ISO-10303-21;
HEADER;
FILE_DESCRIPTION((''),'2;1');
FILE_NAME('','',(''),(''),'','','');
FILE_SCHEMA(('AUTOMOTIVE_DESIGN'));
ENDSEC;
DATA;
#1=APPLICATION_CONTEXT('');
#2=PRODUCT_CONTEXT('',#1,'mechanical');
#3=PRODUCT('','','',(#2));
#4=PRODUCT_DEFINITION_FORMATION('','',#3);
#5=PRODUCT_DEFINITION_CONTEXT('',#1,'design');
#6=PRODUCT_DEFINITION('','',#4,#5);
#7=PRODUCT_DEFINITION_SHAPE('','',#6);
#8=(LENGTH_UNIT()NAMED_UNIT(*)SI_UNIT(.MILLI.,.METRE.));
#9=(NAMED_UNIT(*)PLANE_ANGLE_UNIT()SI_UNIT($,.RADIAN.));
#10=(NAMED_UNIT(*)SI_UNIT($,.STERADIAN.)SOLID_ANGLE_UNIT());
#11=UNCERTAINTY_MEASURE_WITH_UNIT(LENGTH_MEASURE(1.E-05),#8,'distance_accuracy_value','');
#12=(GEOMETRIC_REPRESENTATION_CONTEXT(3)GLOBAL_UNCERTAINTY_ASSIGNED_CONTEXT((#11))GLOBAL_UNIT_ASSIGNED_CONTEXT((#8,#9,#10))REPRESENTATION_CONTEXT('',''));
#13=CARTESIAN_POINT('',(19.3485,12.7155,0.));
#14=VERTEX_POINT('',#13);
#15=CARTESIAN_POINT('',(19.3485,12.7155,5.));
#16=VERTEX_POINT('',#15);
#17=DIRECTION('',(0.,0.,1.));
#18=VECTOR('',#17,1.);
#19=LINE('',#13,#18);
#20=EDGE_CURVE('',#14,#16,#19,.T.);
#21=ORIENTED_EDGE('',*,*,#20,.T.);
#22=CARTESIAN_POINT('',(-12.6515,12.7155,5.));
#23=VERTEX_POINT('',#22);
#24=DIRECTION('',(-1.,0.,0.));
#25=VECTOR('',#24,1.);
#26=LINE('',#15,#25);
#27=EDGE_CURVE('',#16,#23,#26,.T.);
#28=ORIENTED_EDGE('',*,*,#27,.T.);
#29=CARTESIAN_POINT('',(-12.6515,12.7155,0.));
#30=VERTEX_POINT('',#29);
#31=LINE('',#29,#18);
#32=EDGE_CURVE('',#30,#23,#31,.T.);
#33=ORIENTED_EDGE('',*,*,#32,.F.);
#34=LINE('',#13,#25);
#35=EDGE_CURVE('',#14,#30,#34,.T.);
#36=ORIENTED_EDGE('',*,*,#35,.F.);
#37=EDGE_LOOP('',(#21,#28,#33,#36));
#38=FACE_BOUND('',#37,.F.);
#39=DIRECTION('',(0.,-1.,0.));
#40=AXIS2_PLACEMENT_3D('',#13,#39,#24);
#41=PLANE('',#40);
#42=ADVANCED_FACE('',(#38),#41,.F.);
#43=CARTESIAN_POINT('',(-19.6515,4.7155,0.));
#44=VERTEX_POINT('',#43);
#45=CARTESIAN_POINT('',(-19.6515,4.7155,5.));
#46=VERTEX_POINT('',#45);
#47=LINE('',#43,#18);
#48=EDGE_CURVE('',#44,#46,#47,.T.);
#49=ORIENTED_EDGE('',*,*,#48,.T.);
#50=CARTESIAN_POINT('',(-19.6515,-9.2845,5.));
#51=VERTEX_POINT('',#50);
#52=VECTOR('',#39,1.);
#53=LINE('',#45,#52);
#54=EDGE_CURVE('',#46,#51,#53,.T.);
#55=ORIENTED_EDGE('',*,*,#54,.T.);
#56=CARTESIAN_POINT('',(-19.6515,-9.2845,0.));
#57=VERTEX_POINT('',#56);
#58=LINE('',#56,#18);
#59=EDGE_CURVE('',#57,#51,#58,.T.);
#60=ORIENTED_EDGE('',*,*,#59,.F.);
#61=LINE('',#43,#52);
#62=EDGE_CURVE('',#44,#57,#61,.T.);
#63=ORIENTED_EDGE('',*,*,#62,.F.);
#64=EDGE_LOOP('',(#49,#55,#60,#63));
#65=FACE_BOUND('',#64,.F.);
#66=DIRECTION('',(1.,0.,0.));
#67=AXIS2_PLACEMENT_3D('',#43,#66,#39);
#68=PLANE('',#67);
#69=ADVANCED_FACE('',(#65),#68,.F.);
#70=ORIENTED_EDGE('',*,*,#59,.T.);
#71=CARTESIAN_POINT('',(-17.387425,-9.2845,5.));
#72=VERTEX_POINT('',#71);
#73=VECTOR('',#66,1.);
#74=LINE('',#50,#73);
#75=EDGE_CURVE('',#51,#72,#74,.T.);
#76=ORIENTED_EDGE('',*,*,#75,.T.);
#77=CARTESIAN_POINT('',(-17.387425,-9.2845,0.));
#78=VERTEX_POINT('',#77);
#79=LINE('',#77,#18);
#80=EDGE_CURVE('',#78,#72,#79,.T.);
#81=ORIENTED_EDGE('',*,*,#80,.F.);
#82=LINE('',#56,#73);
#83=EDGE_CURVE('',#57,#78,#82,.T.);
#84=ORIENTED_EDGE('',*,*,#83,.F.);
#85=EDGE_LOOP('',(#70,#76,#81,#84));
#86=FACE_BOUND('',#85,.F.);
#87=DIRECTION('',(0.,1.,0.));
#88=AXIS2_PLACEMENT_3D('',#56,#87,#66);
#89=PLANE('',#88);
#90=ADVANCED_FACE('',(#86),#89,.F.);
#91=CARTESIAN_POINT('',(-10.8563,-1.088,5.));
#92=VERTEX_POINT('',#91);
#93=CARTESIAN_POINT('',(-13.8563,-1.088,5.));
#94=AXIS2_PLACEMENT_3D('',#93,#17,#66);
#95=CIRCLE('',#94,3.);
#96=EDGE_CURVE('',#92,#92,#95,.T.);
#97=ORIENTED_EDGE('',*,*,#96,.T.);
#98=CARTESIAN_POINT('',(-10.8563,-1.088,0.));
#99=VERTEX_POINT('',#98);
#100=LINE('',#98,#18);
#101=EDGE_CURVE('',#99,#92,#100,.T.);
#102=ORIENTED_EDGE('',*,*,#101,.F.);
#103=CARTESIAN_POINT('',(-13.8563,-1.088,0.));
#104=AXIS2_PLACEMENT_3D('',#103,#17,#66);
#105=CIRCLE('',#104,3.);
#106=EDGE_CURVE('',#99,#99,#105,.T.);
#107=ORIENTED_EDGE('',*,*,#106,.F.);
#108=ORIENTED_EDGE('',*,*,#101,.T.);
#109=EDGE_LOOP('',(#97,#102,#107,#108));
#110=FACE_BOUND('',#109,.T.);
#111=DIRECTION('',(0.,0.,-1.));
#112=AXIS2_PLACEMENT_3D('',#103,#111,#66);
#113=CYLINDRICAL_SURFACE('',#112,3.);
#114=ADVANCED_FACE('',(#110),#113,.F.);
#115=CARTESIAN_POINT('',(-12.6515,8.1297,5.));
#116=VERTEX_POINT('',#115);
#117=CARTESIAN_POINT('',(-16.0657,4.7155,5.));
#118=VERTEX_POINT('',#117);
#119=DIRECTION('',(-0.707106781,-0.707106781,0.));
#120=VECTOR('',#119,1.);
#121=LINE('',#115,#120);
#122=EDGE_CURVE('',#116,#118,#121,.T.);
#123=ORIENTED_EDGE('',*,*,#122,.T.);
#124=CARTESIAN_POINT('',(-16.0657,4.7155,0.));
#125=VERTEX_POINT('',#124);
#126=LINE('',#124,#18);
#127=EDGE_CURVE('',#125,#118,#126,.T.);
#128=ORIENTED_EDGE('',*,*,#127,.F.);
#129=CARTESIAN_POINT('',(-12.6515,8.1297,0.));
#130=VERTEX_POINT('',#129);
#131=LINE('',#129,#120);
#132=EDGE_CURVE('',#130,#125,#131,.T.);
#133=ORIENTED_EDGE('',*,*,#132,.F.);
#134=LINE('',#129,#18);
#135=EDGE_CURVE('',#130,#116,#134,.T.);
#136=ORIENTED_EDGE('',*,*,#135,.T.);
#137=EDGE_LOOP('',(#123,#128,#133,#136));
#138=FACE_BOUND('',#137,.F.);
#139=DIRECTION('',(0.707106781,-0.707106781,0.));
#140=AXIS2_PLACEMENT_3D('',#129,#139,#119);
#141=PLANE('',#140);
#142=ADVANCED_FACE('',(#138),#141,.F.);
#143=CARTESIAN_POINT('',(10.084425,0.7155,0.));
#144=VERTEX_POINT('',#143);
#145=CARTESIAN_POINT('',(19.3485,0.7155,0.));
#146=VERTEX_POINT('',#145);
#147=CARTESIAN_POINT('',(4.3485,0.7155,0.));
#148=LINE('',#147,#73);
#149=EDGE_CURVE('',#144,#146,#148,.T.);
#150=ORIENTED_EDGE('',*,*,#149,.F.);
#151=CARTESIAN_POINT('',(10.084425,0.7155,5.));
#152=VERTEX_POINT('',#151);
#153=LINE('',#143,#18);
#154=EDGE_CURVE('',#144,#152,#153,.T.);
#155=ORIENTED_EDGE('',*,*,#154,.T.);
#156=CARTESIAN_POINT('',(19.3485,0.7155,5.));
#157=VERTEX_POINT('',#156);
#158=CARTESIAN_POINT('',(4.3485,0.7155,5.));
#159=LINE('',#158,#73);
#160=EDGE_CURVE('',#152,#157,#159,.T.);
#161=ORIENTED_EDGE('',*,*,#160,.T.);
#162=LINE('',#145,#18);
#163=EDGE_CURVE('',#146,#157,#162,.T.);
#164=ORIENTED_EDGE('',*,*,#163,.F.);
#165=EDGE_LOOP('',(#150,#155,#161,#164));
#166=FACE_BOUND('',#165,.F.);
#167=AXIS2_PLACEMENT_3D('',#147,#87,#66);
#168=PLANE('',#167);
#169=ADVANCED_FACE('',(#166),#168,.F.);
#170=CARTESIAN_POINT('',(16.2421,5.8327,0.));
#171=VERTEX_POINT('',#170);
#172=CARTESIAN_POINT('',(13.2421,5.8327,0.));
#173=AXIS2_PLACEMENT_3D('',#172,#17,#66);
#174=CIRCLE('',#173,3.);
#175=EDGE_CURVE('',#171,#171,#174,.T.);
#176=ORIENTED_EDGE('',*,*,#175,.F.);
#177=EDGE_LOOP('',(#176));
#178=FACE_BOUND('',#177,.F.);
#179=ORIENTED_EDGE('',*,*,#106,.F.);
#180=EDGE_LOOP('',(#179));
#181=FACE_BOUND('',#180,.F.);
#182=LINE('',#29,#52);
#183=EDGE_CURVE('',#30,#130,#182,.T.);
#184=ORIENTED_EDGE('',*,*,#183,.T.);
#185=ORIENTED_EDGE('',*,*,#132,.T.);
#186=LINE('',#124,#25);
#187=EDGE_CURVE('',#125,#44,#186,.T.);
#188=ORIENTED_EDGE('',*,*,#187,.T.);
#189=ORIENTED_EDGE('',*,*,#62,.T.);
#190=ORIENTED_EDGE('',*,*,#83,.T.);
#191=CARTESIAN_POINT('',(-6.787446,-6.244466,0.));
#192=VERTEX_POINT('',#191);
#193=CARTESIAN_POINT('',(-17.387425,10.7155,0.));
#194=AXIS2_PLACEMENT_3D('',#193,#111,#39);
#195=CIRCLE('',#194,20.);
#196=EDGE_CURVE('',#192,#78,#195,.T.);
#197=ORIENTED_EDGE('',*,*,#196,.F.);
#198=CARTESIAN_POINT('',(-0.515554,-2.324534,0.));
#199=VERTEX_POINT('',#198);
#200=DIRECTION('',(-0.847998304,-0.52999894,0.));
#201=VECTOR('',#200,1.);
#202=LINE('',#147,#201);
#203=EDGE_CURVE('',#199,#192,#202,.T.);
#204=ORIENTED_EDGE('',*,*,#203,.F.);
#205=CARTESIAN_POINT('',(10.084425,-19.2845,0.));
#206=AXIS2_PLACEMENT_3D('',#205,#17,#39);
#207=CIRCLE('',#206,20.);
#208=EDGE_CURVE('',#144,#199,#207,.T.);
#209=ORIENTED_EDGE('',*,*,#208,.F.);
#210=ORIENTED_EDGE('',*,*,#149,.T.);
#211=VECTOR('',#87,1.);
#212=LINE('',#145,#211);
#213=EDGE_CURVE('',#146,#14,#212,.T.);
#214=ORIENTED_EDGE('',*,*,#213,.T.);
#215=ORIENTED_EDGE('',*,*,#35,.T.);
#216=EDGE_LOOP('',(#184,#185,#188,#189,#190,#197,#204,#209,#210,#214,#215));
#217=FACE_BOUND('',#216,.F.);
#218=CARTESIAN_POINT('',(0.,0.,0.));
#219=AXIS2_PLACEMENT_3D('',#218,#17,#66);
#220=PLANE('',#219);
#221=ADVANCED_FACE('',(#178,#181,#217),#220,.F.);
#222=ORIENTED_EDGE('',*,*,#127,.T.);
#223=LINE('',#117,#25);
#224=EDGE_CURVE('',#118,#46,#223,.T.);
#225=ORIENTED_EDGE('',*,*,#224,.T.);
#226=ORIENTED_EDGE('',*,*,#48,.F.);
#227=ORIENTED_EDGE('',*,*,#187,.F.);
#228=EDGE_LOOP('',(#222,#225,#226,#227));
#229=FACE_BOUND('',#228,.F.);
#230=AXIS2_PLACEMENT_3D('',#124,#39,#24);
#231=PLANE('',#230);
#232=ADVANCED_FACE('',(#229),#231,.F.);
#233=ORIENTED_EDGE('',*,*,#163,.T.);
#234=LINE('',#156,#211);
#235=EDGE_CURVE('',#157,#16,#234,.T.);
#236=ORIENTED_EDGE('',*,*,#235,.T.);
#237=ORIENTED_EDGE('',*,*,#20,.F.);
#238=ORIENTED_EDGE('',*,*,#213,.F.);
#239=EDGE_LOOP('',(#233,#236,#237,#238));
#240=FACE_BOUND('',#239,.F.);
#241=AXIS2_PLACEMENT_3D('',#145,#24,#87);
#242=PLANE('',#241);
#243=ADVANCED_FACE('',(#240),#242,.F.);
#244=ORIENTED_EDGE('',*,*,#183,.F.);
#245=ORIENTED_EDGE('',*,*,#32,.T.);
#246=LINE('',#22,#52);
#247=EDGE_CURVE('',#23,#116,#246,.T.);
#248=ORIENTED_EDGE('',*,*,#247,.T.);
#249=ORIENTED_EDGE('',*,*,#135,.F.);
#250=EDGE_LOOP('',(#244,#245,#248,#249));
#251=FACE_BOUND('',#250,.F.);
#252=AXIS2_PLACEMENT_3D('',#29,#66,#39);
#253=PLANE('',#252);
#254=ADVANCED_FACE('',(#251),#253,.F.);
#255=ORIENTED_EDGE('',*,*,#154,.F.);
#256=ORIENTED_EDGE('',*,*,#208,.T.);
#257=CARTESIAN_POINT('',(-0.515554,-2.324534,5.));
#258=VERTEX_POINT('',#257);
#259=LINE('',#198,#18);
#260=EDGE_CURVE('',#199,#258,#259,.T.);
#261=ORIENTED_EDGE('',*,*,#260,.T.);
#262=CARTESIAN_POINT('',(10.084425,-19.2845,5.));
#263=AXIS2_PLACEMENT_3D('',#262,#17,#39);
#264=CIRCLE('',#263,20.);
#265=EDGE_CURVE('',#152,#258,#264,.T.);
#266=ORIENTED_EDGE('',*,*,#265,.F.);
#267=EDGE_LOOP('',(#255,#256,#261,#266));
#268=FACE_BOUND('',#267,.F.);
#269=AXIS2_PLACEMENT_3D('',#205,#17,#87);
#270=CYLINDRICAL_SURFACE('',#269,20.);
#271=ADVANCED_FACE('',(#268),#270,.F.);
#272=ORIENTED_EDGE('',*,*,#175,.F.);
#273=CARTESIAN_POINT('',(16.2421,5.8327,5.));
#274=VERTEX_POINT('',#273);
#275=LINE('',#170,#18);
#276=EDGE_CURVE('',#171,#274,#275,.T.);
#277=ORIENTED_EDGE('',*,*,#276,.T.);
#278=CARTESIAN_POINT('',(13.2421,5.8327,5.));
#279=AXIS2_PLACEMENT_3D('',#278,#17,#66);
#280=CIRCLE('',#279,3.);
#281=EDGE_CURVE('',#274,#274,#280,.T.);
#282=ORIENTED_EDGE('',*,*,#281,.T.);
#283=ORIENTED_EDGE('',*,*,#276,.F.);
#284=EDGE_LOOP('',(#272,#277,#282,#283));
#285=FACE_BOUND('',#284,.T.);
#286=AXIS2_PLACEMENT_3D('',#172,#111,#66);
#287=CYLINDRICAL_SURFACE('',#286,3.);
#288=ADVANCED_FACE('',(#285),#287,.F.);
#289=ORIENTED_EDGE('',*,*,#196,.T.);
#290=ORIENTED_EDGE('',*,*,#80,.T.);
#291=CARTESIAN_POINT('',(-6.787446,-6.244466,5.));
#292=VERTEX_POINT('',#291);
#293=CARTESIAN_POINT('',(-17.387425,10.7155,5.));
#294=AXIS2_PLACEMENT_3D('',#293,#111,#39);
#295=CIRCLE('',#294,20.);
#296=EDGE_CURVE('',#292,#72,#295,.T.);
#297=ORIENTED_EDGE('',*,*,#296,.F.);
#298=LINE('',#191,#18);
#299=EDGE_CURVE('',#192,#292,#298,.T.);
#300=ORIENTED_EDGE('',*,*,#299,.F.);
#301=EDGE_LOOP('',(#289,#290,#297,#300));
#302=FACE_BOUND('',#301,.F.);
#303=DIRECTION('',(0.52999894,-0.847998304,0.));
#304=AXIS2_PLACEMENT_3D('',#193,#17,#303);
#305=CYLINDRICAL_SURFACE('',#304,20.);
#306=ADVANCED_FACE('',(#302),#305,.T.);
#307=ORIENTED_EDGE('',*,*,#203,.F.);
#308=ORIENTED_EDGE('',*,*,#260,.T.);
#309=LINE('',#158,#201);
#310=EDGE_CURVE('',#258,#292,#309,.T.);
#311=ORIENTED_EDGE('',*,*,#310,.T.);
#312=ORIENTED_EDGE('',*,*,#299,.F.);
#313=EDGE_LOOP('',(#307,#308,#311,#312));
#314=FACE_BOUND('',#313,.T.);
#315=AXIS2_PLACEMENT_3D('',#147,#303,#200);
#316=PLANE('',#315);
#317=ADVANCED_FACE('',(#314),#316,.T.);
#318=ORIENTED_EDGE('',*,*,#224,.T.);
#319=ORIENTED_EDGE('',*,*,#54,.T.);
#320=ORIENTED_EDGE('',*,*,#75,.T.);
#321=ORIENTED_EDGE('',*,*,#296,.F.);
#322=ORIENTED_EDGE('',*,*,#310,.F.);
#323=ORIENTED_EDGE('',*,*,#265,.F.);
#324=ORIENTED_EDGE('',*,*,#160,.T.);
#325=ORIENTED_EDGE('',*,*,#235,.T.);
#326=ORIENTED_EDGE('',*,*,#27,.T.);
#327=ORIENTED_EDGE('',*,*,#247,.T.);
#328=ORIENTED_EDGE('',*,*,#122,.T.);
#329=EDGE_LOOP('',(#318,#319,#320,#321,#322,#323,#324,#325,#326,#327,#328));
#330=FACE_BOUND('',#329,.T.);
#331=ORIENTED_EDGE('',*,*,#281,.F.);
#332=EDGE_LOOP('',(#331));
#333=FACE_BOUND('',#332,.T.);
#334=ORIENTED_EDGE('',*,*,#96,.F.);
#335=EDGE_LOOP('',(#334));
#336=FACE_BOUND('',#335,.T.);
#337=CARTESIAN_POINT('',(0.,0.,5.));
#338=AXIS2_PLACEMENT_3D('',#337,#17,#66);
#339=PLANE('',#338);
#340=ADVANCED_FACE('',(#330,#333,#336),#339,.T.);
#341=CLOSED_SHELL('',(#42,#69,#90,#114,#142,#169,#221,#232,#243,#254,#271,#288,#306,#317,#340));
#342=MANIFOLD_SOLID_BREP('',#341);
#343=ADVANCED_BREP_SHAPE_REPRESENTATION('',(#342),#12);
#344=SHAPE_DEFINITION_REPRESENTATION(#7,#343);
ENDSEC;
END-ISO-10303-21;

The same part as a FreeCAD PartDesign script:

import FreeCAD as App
import Part
import Sketcher

V = App.Vector
Q = App.Units.Quantity


def edges_at(feature, points):
    """Names of the edges that pass closest to the given points."""
    edges = feature.Shape.Edges
    near = lambda p: min(range(len(edges)), key=lambda i: edges[i].distToShape(Part.Vertex(*p))[0])
    return sorted({f"Edge{near(p) + 1}" for p in points})


def add_polygon(sketch, points):
    """Adds a closed chain of lines whose ends are joined by coincident constraints."""
    first, n = sketch.GeometryCount, len(points)
    for a, b in zip(points, points[1:] + points[:1]):
        sketch.addGeometry(Part.LineSegment(App.Vector(*a, 0), App.Vector(*b, 0)), False)
    for i in range(n):
        sketch.addConstraint(Sketcher.Constraint("Coincident", first + i, 2, first + (i + 1) % n, 1))

doc = App.newDocument("Part")
body = doc.addObject("PartDesign::Body", "Body")

# Sketch on XY plane
sketch1 = doc.addObject("Sketcher::SketchObject", "Sketch")
body.addObject(sketch1)
sketch1.AttachmentSupport = (doc.XY_Plane, [""])
sketch1.MapMode = "FlatFace"
add_polygon(sketch1, [(19.3485, 12.7155), (-12.6515, 12.7155), (-12.6515, 8.1297), (-16.0657, 4.7155), (-19.6515, 4.7155), (-19.6515, -9.2845), (4.3485, -9.2845), (4.3485, 0.7155), (19.3485, 0.7155)])  # lines 0-8
sketch1.addGeometry(Part.Circle(V(-13.8563, -1.088, 0), V(0, 0, 1), 3), False)  # 9
sketch1.addGeometry(Part.Circle(V(13.2421, 5.8327, 0), V(0, 0, 1), 3), False)  # 10
sketch1.addConstraint([
    Sketcher.Constraint("Horizontal", 0),
    Sketcher.Constraint("Vertical", 1),
    Sketcher.Constraint("Horizontal", 3),
    Sketcher.Constraint("Vertical", 4),
    Sketcher.Constraint("Horizontal", 5),
    Sketcher.Constraint("Vertical", 6),
    Sketcher.Constraint("Horizontal", 7),
    Sketcher.Constraint("Vertical", 8),
    Sketcher.Constraint("Equal", 9, 10),
    Sketcher.Constraint("Diameter", 9, 6.0),
    Sketcher.Constraint("DistanceX", 0, 2, 0, 1, 32.0),
    Sketcher.Constraint("DistanceX", 5, 1, 5, 2, 24.0),
    Sketcher.Constraint("DistanceX", 7, 1, 7, 2, 15.0),
    Sketcher.Constraint("DistanceY", 4, 2, 4, 1, 14.0),
    Sketcher.Constraint("DistanceY", 6, 1, 6, 2, 10.0),
    Sketcher.Constraint("DistanceY", 8, 1, 8, 2, 12.0),
    Sketcher.Constraint("Angle", 2, Q("-135 deg")),
    Sketcher.Constraint("DistanceX", 3, 2, 3, 1, 3.5858),
    Sketcher.Constraint("DistanceY", 9, 3, -1, 1, 1.088),
    Sketcher.Constraint("DistanceX", -1, 1, 10, 3, 13.242),
    Sketcher.Constraint("DistanceY", 10, 3, 1, 2, 2.297),
    Sketcher.Constraint("DistanceX", 9, 3, -1, 1, 13.8563),
    Sketcher.Constraint("DistanceY", -1, 1, 10, 3, 5.8327),
    Sketcher.Constraint("DistanceX", 0, 2, -1, 1, 12.6515),
])
pad1 = doc.addObject("PartDesign::Pad", "Pad")
body.addObject(pad1)
pad1.Profile = sketch1
pad1.Length = 5

# Sketch on XY plane
sketch2 = doc.addObject("Sketcher::SketchObject", "Sketch001")
body.addObject(sketch2)
sketch2.AttachmentSupport = (doc.XY_Plane, [""])
sketch2.MapMode = "FlatFace"
add_polygon(sketch2, [(4.3485, 0.7155), (4.3485, -9.2845), (-11.6515, -9.2845)])  # lines 0-2
sketch2.addConstraint([
    Sketcher.Constraint("Vertical", 0),
    Sketcher.Constraint("Horizontal", 1),
    Sketcher.Constraint("DistanceX", 1, 2, 1, 1, 16.0),
    Sketcher.Constraint("DistanceY", 0, 2, 0, 1, 10.0),
    Sketcher.Constraint("DistanceX", -1, 1, 0, 2, 4.3485),
    Sketcher.Constraint("DistanceY", 0, 2, -1, 1, 9.2845),
])
pocket1 = doc.addObject("PartDesign::Pocket", "Pocket")
body.addObject(pocket1)
pocket1.Profile = sketch2
pocket1.Length = 5
pocket1.Reversed = True
doc.recompute()

fillet = doc.addObject("PartDesign::Fillet", "Fillet")
body.addObject(fillet)
fillet.Base = (pocket1, edges_at(pocket1, [(4.348, 0.716, 2.5), (-11.652, -9.284, 2.5)]))
fillet.Radius = 20

doc.recompute()
